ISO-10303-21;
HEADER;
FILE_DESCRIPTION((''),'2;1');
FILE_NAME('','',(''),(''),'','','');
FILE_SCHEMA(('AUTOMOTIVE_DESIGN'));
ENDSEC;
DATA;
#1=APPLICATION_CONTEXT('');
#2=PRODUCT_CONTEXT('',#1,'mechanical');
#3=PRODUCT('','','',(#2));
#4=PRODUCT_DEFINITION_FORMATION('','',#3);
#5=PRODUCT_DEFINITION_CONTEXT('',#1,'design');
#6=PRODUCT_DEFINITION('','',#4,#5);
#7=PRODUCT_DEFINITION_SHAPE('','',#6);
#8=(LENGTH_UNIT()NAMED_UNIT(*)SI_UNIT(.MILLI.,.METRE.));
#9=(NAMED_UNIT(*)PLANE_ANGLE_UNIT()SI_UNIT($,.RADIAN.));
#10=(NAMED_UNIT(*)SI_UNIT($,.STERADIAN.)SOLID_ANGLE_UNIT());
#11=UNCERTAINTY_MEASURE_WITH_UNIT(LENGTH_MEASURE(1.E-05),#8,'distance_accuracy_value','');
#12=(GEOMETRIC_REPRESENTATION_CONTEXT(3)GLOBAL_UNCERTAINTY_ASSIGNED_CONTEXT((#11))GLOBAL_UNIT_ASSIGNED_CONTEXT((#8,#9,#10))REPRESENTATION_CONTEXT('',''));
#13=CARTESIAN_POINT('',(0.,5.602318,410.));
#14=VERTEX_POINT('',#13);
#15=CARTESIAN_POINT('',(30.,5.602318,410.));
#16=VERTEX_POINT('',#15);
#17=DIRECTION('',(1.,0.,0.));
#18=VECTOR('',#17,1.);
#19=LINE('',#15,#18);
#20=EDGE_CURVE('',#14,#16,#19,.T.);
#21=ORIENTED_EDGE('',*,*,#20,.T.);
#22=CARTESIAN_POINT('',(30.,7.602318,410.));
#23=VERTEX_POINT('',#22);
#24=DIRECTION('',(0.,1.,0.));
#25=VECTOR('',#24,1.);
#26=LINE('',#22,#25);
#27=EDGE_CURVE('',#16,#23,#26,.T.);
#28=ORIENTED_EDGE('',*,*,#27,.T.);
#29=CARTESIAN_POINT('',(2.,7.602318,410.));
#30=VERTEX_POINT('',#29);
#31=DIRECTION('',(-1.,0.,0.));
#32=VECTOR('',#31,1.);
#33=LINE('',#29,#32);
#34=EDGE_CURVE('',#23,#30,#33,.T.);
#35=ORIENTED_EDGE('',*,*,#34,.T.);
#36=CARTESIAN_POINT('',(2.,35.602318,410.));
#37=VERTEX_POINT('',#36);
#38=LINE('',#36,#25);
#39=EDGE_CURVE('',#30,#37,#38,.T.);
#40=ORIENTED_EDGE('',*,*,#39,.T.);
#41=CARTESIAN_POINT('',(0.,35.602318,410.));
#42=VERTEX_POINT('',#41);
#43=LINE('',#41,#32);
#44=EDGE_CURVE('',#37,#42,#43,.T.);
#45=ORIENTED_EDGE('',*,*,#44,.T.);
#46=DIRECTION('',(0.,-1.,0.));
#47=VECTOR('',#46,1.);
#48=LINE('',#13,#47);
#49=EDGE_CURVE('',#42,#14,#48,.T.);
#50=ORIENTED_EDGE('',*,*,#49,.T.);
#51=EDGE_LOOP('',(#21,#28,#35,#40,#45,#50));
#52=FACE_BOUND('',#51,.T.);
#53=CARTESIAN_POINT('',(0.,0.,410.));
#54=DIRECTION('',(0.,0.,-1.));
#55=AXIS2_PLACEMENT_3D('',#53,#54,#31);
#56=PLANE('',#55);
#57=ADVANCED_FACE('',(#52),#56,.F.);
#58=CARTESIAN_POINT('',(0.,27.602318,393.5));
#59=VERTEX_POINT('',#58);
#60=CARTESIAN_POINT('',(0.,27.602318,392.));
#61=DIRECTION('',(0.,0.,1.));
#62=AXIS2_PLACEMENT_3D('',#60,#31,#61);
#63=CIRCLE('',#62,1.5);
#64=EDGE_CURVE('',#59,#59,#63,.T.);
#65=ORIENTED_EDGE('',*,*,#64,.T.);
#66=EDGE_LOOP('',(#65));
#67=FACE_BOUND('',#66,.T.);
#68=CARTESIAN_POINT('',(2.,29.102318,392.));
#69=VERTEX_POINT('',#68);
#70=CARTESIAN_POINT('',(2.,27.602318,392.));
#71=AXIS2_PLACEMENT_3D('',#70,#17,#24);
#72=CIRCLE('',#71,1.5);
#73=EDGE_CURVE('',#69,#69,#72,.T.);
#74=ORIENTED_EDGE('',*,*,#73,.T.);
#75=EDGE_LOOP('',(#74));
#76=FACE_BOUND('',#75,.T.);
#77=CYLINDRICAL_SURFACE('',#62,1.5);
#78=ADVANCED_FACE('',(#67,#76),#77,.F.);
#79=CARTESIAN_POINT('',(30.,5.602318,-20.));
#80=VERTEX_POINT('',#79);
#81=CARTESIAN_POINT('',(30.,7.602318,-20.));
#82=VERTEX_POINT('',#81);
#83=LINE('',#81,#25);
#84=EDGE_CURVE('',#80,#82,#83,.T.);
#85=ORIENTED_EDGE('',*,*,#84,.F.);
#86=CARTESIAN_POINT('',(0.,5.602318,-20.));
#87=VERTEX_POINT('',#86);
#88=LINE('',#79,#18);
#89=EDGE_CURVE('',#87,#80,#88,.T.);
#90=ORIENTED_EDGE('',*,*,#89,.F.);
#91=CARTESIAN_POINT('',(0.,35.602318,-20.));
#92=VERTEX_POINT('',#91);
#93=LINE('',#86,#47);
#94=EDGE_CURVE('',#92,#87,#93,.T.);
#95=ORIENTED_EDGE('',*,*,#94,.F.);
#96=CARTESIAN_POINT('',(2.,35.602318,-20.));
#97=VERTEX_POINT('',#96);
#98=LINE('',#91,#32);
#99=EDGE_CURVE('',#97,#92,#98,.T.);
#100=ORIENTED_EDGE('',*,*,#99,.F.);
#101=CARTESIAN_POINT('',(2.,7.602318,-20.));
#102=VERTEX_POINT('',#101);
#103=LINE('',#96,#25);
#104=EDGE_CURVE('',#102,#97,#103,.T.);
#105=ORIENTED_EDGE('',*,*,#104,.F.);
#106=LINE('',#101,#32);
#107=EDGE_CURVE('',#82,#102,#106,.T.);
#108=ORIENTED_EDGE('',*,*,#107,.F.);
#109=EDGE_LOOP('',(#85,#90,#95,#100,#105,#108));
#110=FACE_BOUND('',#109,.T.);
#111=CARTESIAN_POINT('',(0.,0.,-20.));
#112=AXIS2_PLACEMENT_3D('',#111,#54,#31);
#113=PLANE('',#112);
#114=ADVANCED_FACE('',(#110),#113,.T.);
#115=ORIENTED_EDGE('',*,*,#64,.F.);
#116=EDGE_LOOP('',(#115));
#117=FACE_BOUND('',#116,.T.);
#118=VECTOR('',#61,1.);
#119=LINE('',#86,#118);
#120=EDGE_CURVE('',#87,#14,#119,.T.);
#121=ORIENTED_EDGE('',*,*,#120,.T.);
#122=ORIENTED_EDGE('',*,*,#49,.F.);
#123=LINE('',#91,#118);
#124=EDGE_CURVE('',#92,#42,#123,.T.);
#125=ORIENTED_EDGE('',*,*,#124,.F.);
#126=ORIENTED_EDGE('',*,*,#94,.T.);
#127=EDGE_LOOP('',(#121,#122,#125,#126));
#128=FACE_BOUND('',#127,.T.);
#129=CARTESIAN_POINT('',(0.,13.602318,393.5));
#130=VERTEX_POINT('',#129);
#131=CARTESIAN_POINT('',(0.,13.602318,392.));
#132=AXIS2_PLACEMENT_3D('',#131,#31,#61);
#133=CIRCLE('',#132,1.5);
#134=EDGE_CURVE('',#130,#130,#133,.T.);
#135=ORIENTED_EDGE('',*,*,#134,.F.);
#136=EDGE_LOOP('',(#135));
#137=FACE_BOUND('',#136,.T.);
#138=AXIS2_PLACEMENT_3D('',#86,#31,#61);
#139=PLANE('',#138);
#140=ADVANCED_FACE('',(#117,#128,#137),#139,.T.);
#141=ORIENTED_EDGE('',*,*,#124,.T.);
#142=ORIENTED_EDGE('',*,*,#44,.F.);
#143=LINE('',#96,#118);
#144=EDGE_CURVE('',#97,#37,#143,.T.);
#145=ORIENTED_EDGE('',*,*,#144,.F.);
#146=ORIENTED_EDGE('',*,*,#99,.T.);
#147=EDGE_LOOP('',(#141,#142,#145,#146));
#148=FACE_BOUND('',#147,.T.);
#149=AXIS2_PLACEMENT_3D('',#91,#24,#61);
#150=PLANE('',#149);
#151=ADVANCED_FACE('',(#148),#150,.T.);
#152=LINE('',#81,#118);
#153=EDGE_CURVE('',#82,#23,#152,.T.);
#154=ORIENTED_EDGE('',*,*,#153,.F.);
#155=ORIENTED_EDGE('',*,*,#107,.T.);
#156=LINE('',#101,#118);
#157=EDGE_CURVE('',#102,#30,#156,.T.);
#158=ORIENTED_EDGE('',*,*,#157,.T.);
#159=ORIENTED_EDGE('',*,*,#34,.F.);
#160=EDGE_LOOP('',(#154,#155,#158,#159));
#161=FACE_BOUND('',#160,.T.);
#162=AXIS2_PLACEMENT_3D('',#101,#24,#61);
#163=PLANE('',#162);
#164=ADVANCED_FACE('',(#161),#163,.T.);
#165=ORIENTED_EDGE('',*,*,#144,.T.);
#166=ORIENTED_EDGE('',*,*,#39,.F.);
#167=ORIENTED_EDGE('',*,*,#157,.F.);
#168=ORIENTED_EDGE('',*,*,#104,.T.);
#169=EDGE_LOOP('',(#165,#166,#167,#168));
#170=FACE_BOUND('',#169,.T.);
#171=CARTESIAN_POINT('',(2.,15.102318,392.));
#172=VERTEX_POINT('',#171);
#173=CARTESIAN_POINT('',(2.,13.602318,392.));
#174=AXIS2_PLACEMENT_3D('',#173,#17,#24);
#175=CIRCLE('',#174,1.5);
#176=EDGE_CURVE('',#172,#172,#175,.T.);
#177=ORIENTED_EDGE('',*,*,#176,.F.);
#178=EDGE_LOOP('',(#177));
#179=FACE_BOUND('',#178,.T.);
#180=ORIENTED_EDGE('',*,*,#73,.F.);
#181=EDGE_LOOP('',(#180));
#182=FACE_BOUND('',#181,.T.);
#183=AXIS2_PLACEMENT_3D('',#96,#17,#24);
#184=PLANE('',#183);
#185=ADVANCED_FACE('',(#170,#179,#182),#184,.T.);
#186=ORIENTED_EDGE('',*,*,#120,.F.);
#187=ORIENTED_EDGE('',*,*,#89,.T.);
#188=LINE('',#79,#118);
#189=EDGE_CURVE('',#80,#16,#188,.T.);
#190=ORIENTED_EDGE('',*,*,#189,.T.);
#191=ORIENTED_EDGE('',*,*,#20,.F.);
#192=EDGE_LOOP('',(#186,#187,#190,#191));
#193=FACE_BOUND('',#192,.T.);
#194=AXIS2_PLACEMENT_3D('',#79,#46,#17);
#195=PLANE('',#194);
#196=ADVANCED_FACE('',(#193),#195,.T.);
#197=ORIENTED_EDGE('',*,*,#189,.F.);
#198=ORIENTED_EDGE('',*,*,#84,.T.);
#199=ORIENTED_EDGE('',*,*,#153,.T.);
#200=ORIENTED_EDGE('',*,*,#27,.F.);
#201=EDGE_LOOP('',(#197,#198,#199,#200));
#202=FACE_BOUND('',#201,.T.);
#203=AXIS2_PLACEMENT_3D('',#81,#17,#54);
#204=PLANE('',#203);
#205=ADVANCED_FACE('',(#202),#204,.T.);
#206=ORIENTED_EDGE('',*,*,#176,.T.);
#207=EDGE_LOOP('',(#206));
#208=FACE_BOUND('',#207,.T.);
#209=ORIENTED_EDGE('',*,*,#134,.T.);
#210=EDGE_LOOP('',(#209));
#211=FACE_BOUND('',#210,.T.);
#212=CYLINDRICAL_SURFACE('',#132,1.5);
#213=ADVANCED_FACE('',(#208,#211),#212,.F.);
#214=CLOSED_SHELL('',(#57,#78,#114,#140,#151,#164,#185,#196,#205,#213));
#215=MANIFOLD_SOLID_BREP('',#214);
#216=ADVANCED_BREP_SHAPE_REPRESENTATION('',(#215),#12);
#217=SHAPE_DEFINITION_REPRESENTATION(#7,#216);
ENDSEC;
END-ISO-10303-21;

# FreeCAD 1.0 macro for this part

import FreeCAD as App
import Part
import Sketcher
Q = App.Units.Quantity


def add_polygon(sketch, points):
    """Adds a closed chain of lines whose ends are joined by coincident constraints."""
    first, n = sketch.GeometryCount, len(points)
    for a, b in zip(points, points[1:] + points[:1]):
        sketch.addGeometry(Part.LineSegment(App.Vector(*a, 0), App.Vector(*b, 0)), False)
    for i in range(n):
        sketch.addConstraint(Sketcher.Constraint("Coincident", first + i, 2, first + (i + 1) % n, 1))

doc = App.newDocument("Part")
body = doc.addObject("PartDesign::Body", "Body")

# Sketch on XY plane
sketch1 = body.newObject("Sketcher::SketchObject", "Sketch")
sketch1.AttachmentSupport = (doc.getObject("XY_Plane"), [""])
sketch1.MapMode = "FlatFace"
add_polygon(sketch1, [(0, 35.6), (0, 5.6), (30, 5.6), (30, 7.6), (2, 7.6), (2, 35.6)])  # lines 0-5
sketch1.addConstraint(Sketcher.Constraint("Vertical", 0))
sketch1.addConstraint(Sketcher.Constraint("Horizontal", 1))
sketch1.addConstraint(Sketcher.Constraint("Vertical", 2))
sketch1.addConstraint(Sketcher.Constraint("Horizontal", 3))
sketch1.addConstraint(Sketcher.Constraint("Vertical", 4))
sketch1.addConstraint(Sketcher.Constraint("Horizontal", 5))
sketch1.addConstraint(Sketcher.Constraint("PointOnObject", 0, 2, -2))
sketch1.addConstraint(Sketcher.Constraint("Equal", 1, 0))
sketch1.addConstraint(Sketcher.Constraint("Equal", 5, 2))
sketch1.addConstraint(Sketcher.Constraint("DistanceX", 1, 1, 1, 2, Q("30 mm")))
sketch1.addConstraint(Sketcher.Constraint("DistanceX", 3, 2, 3, 1, Q("28 mm")))
sketch1.addConstraint(Sketcher.Constraint("DistanceY", -1, 1, 0, 2, Q("5.602318 mm")))
pad1 = body.newObject("PartDesign::Pad", "Pad")
pad1.Profile = sketch1
pad1.Type = "TwoLengths"
pad1.Length = 410
pad1.Length2 = 20

# Sketch on YZ plane
sketch2 = body.newObject("Sketcher::SketchObject", "Sketch001")
sketch2.AttachmentSupport = (doc.getObject("YZ_Plane"), [""])
sketch2.MapMode = "FlatFace"
sketch2.addGeometry(Part.Circle(App.Vector(13.6, 392, 0), App.Vector(0, 0, 1), 1.5), False)
sketch2.addGeometry(Part.Circle(App.Vector(27.6, 392, 0), App.Vector(0, 0, 1), 1.5), False)
sketch2.addGeometry(Part.Circle(App.Vector(351.6, 392, 0), App.Vector(0, 0, 1), 1.5), False)
sketch2.addGeometry(Part.Circle(App.Vector(337.6, 392, 0), App.Vector(0, 0, 1), 1.5), False)
sketch2.addConstraint(Sketcher.Constraint("Equal", 0, 1))
sketch2.addConstraint(Sketcher.Constraint("Equal", 1, 2))
sketch2.addConstraint(Sketcher.Constraint("Equal", 2, 3))
sketch2.addConstraint(Sketcher.Constraint("Horizontal", 0, 3, 1, 3))
sketch2.addConstraint(Sketcher.Constraint("Horizontal", 1, 3, 2, 3))
sketch2.addConstraint(Sketcher.Constraint("Horizontal", 2, 3, 3, 3))
sketch2.addConstraint(Sketcher.Constraint("Diameter", 0, Q("3 mm")))
sketch2.addConstraint(Sketcher.Constraint("DistanceY", -1, 1, 0, 3, Q("392 mm")))
sketch2.addConstraint(Sketcher.Constraint("DistanceX", 0, 3, 1, 3, Q("14 mm")))
sketch2.addConstraint(Sketcher.Constraint("DistanceX", 1, 3, 2, 3, Q("324 mm")))
sketch2.addConstraint(Sketcher.Constraint("DistanceX", 3, 3, 2, 3, Q("14 mm")))
sketch2.addConstraint(Sketcher.Constraint("DistanceX", -1, 1, 0, 3, Q("13.602318 mm")))
doc.recompute()
hole = body.newObject("PartDesign::Hole", "Hole")
hole.Profile = sketch2
hole.ThreadType = "None"
hole.Diameter = 3
hole.DepthType = "ThroughAll"
hole.Reversed = True

doc.recompute()
